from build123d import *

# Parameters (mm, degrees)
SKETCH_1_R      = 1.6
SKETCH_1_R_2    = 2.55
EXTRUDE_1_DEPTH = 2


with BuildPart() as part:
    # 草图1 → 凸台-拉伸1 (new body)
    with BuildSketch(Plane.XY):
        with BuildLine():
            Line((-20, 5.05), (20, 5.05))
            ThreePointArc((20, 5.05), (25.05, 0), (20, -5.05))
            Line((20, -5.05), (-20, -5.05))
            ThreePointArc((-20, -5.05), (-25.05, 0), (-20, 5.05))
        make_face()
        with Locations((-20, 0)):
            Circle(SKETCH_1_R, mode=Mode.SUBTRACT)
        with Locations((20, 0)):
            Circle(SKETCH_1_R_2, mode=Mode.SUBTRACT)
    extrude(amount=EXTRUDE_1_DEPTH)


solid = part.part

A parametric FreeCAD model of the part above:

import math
import FreeCAD as App
import Part
import Sketcher
from FreeCAD import Vector
Q = App.Units.Quantity

doc = App.newDocument("Part")
body = doc.addObject("PartDesign::Body", "Body")

sketch1 = body.newObject("Sketcher::SketchObject", "Sketch")
sketch1.AttachmentSupport = (doc.getObject("XY_Plane"), [""])
sketch1.MapMode = "FlatFace"
sketch1.addGeometry(Part.LineSegment(Vector(20, 5, 0), Vector(-20, 5, 0)), False)
sketch1.addGeometry(Part.ArcOfCircle(Part.Circle(Vector(-20, 0, 0), Vector(0, 0, 1), 5), math.radians(90), math.radians(270)), False)
sketch1.addGeometry(Part.LineSegment(Vector(-20, -5, 0), Vector(20, -5, 0)), False)
sketch1.addGeometry(Part.ArcOfCircle(Part.Circle(Vector(20, 0, 0), Vector(0, 0, 1), 5), math.radians(-90), math.radians(90)), False)
sketch1.addGeometry(Part.Circle(Vector(20, 0, 0), Vector(0, 0, 1), 2.5), False)
sketch1.addGeometry(Part.Circle(Vector(-20, 0, 0), Vector(0, 0, 1), 1.6), False)
sketch1.addConstraint(Sketcher.Constraint("Tangent", 0, 2, 1, 1))
sketch1.addConstraint(Sketcher.Constraint("Tangent", 1, 2, 2, 1))
sketch1.addConstraint(Sketcher.Constraint("Tangent", 2, 2, 3, 1))
sketch1.addConstraint(Sketcher.Constraint("Tangent", 3, 2, 0, 1))
sketch1.addConstraint(Sketcher.Constraint("Horizontal", 0))
sketch1.addConstraint(Sketcher.Constraint("Horizontal", 2))
sketch1.addConstraint(Sketcher.Constraint("Coincident", 4, 3, 3, 3))
sketch1.addConstraint(Sketcher.Constraint("Coincident", 5, 3, 1, 3))
sketch1.addConstraint(Sketcher.Constraint("Symmetric", 1, 3, 3, 3, -1, 1))
sketch1.addConstraint(Sketcher.Constraint("Diameter", 4, Q("5.1 mm")))
sketch1.addConstraint(Sketcher.Constraint("Diameter", 5, Q("3.2 mm")))
sketch1.addConstraint(Sketcher.Constraint("DistanceX", 0, 2, 0, 1, Q("40 mm")))
sketch1.addConstraint(Sketcher.Constraint("Radius", 1, Q("5.05 mm")))
pad1 = body.newObject("PartDesign::Pad", "Pad")
pad1.Profile = sketch1
pad1.Length = 2

doc.recompute()
